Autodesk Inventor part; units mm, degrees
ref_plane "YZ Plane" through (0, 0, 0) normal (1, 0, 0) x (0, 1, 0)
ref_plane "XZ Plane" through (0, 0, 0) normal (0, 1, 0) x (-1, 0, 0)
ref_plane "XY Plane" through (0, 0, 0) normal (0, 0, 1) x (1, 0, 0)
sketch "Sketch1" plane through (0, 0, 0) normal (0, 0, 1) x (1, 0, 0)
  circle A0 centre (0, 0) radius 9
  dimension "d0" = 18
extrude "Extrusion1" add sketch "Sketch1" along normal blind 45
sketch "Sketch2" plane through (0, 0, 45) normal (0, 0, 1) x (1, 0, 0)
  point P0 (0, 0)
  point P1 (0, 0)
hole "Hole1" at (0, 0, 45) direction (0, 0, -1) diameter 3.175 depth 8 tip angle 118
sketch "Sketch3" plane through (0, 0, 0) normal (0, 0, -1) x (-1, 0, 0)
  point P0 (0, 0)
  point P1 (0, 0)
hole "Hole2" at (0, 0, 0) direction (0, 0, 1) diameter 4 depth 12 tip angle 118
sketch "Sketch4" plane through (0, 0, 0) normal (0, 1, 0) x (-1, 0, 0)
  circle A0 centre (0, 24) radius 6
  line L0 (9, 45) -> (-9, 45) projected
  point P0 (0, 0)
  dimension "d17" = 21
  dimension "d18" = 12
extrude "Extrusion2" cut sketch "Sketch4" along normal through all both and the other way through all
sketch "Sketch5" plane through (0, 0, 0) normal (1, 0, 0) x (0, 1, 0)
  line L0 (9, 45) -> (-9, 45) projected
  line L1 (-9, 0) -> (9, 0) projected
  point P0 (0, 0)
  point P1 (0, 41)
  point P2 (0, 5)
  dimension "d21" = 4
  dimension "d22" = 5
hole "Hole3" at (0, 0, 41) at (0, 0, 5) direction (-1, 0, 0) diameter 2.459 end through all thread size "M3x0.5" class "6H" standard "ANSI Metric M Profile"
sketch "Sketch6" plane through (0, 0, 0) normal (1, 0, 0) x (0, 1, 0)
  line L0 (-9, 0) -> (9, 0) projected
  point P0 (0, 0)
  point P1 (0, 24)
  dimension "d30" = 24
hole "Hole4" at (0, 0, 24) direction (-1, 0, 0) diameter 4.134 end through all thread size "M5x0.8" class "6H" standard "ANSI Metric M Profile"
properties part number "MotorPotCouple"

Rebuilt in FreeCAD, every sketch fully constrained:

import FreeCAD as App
import Part
import Sketcher

V = App.Vector
Q = App.Units.Quantity

doc = App.newDocument("Part")
body = doc.addObject("PartDesign::Body", "Body")

# Sketch on XY plane
sketch1 = body.newObject("Sketcher::SketchObject", "Sketch")
sketch1.AttachmentSupport = (doc.getObject("XY_Plane"), [""])
sketch1.MapMode = "FlatFace"
sketch1.addGeometry(Part.Circle(V(0, 0, 0), V(0, 0, 1), 9), False)
sketch1.addConstraint([
    Sketcher.Constraint("Coincident", 0, 3, -1, 1),
    Sketcher.Constraint("Diameter", 0, Q("18 mm")),
])
pad1 = body.newObject("PartDesign::Pad", "Pad")
pad1.Profile = sketch1
pad1.Length = 45

# Sketch on XY plane
sketch2 = body.newObject("Sketcher::SketchObject", "Sketch001")
sketch2.AttachmentSupport = (doc.getObject("XY_Plane"), [""])
sketch2.MapMode = "FlatFace"
sketch2.AttachmentOffset = App.Placement(V(0, 0, 45), App.Rotation())
sketch2.addGeometry(Part.Circle(V(0, 0, 0), V(0, 0, 1), 1.5875), False)
sketch2.addConstraint([
    Sketcher.Constraint("Coincident", 0, 3, -1, 1),
    Sketcher.Constraint("Diameter", 0, Q("3.175 mm")),
])
doc.recompute()
hole = body.newObject("PartDesign::Hole", "Hole")
hole.Profile = sketch2
hole.ThreadType = "None"
hole.Diameter = 3.175
hole.DepthType = "Dimension"
hole.Depth = 8
hole.DrillPoint = "Angled"
hole.DrillPointAngle = 118

# Sketch on XY plane
sketch3 = body.newObject("Sketcher::SketchObject", "Sketch002")
sketch3.AttachmentSupport = (doc.getObject("XY_Plane"), [""])
sketch3.MapMode = "FlatFace"
sketch3.addGeometry(Part.Circle(V(0, 0, 0), V(0, 0, 1), 2), False)
sketch3.addConstraint([
    Sketcher.Constraint("Coincident", 0, 3, -1, 1),
    Sketcher.Constraint("Diameter", 0, Q("4 mm")),
])
doc.recompute()
hole2 = body.newObject("PartDesign::Hole", "Hole001")
hole2.Profile = sketch3
hole2.ThreadType = "None"
hole2.Diameter = 4
hole2.DepthType = "Dimension"
hole2.Depth = 12
hole2.DrillPoint = "Angled"
hole2.DrillPointAngle = 118
hole2.Reversed = True

# Sketch on XZ plane
sketch4 = body.newObject("Sketcher::SketchObject", "Sketch003")
sketch4.AttachmentSupport = (doc.getObject("XZ_Plane"), [""])
sketch4.MapMode = "FlatFace"
sketch4.addGeometry(Part.Circle(V(0, 24, 0), V(0, 0, 1), 6), False)
sketch4.addConstraint([
    Sketcher.Constraint("PointOnObject", 0, 3, -2),
    Sketcher.Constraint("Diameter", 0, Q("12 mm")),
    Sketcher.Constraint("DistanceY", -1, 1, 0, 3, Q("24 mm")),
])
pocket1 = body.newObject("PartDesign::Pocket", "Pocket")
pocket1.Profile = sketch4
pocket1.Type = "ThroughAll"
pocket1.Midplane = True

# Sketch on YZ plane
sketch5 = body.newObject("Sketcher::SketchObject", "Sketch004")
sketch5.AttachmentSupport = (doc.getObject("YZ_Plane"), [""])
sketch5.MapMode = "FlatFace"
sketch5.addGeometry([
    Part.Circle(V(0, 41, 0), V(0, 0, 1), 1.2295),
    Part.Circle(V(0, 5, 0), V(0, 0, 1), 1.2295),
], False)
sketch5.addConstraint([
    Sketcher.Constraint("Equal", 0, 1),
    Sketcher.Constraint("PointOnObject", 0, 3, -2),
    Sketcher.Constraint("PointOnObject", 1, 3, -2),
    Sketcher.Constraint("Diameter", 0, Q("2.459 mm")),
    Sketcher.Constraint("DistanceY", -1, 1, 0, 3, Q("41 mm")),
    Sketcher.Constraint("DistanceY", -1, 1, 1, 3, Q("5 mm")),
])
doc.recompute()
hole3 = body.newObject("PartDesign::Hole", "Hole002")
hole3.Profile = sketch5
hole3.ThreadType = "None"
hole3.Diameter = 2.459
hole3.DepthType = "ThroughAll"

# Sketch on YZ plane
sketch6 = body.newObject("Sketcher::SketchObject", "Sketch005")
sketch6.AttachmentSupport = (doc.getObject("YZ_Plane"), [""])
sketch6.MapMode = "FlatFace"
sketch6.addGeometry(Part.Circle(V(0, 24, 0), V(0, 0, 1), 2.067), False)
sketch6.addConstraint([
    Sketcher.Constraint("PointOnObject", 0, 3, -2),
    Sketcher.Constraint("Diameter", 0, Q("4.134 mm")),
    Sketcher.Constraint("DistanceY", -1, 1, 0, 3, Q("24 mm")),
])
doc.recompute()
hole4 = body.newObject("PartDesign::Hole", "Hole003")
hole4.Profile = sketch6
hole4.ThreadType = "None"
hole4.Diameter = 4.134
hole4.DepthType = "ThroughAll"

doc.recompute()
